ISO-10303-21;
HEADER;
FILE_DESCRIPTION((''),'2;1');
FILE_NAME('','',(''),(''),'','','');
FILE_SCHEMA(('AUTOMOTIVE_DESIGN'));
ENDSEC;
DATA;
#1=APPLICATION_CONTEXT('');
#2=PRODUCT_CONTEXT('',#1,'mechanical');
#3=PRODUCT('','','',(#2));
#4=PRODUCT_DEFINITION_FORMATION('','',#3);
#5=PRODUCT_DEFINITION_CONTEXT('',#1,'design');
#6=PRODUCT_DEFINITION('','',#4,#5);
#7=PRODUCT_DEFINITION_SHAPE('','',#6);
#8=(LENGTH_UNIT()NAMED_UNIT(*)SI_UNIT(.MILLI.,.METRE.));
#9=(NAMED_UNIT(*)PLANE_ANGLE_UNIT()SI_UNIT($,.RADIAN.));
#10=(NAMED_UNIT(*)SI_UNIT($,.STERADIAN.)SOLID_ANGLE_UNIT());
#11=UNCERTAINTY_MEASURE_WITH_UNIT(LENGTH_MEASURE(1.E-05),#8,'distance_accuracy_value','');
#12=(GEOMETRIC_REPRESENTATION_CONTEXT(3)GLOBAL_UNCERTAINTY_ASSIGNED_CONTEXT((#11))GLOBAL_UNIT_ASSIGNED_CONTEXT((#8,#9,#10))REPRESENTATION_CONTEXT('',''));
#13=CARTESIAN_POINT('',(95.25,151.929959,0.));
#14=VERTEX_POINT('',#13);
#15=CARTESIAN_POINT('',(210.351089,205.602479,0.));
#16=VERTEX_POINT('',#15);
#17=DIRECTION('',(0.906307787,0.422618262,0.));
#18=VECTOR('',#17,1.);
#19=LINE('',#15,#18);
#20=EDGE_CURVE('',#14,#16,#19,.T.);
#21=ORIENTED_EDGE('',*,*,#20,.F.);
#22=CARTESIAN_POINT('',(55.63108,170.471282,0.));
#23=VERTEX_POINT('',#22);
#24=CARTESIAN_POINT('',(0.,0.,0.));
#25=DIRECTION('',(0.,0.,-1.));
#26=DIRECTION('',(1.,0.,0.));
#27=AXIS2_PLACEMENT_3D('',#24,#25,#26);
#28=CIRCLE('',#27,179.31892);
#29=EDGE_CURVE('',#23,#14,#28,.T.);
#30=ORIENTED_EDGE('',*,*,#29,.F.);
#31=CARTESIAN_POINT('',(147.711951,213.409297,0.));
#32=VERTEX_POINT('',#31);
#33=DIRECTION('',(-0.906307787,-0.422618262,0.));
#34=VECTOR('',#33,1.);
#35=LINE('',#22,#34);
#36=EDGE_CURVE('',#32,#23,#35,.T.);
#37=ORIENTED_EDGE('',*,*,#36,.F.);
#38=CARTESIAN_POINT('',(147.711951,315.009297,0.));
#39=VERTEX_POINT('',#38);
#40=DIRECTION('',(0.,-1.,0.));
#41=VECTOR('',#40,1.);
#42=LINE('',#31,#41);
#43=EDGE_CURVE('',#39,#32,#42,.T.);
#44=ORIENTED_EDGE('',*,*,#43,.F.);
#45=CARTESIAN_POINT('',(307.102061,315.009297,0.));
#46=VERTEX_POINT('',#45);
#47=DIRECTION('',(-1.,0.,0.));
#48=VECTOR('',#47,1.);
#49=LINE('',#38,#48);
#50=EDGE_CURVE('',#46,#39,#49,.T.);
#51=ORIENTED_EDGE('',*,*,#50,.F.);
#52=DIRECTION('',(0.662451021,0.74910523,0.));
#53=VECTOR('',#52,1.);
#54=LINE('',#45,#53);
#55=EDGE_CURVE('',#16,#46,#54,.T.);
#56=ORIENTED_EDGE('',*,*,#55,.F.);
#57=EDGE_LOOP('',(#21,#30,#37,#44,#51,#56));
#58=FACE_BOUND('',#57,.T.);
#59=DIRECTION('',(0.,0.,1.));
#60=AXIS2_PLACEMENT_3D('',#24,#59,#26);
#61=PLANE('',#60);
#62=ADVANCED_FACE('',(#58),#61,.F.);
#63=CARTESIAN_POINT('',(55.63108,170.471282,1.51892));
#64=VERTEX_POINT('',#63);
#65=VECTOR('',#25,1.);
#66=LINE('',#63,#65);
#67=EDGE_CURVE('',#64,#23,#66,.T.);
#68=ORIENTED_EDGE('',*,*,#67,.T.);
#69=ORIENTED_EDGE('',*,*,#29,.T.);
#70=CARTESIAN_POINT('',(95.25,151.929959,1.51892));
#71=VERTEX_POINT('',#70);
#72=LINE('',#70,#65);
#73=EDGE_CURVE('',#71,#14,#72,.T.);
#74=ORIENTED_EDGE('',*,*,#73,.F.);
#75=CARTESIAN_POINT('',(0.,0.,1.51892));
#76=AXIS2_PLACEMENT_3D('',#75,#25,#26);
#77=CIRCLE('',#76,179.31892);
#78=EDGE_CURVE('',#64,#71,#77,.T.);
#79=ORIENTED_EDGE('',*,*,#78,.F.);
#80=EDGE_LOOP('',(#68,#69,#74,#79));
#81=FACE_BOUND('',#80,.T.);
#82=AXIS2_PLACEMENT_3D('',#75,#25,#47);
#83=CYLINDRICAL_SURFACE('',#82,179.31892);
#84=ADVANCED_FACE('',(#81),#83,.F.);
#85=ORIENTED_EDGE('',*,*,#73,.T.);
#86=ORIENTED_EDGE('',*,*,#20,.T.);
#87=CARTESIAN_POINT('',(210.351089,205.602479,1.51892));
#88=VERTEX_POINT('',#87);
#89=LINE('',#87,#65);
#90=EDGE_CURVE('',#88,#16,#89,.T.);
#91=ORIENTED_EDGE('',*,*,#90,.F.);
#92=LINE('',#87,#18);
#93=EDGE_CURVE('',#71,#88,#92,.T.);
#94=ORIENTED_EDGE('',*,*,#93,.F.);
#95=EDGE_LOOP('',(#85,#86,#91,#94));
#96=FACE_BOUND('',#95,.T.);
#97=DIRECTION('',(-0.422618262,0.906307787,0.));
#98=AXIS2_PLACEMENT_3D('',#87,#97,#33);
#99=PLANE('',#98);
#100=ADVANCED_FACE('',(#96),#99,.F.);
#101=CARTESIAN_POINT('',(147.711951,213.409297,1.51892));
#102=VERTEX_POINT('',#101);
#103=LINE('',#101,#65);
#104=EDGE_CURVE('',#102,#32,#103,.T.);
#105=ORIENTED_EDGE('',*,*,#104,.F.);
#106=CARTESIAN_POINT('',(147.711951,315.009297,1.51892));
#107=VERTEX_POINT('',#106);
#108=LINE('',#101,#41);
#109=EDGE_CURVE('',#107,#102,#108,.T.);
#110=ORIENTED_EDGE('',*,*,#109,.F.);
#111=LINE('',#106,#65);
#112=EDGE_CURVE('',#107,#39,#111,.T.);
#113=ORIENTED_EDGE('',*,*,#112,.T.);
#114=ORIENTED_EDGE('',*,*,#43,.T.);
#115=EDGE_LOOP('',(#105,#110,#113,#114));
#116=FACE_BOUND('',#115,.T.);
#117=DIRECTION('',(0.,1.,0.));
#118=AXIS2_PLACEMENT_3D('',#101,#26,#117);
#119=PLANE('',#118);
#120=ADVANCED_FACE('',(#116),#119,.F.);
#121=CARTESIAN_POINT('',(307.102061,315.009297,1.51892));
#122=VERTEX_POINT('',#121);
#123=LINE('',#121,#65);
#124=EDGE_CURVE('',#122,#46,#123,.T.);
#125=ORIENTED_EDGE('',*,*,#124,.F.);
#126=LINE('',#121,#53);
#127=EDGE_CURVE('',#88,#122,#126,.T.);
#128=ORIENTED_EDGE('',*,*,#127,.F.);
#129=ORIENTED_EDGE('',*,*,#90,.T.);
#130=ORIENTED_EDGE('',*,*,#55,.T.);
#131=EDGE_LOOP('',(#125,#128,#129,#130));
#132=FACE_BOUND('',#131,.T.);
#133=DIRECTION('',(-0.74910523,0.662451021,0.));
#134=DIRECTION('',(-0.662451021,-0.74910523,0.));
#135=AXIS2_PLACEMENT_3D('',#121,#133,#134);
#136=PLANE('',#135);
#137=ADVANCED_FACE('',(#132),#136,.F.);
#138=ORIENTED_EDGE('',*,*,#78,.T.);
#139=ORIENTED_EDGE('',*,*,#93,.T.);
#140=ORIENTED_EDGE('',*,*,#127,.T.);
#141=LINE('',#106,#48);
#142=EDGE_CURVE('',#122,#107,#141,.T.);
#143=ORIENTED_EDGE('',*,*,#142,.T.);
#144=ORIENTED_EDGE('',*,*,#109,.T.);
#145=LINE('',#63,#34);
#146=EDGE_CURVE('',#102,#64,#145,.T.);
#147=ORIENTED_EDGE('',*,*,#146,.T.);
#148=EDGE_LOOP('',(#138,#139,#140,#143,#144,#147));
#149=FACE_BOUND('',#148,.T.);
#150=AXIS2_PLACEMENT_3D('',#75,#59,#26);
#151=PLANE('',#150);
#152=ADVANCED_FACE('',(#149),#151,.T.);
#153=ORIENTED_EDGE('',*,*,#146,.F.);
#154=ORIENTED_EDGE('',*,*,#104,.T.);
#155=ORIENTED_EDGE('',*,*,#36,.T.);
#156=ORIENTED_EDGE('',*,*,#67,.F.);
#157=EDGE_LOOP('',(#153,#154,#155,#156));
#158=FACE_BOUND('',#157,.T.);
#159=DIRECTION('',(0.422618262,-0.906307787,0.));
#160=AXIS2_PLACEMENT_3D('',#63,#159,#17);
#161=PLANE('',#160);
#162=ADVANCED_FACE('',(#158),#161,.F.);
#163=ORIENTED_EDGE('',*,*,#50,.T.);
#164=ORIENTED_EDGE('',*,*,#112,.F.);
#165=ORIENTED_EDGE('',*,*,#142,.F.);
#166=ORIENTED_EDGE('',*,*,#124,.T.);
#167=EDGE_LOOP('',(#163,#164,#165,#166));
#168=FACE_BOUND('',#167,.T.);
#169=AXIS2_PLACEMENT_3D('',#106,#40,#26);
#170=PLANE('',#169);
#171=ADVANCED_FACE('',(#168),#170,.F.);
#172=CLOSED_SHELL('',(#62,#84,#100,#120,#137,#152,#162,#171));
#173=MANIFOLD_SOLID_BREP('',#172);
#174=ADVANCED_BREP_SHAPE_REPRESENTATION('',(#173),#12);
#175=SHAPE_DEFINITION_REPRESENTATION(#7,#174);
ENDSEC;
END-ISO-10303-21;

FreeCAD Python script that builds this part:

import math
import FreeCAD as App
import Part
import Sketcher
Q = App.Units.Quantity

doc = App.newDocument("Part")
params = doc.addObject("Spreadsheet::Sheet", "Params")
for row, (alias, value) in enumerate([
    ("sketch1_height", "4 in"),
    ("sketch1_length", "4 in"),
    ("sketch1_length2", "5 in"),
    ("sketch1_length3", "5.75 in"),
    ("pad1_length", "0.0598 in"),
], start=1):
    params.set(f"A{row}", alias)
    params.set(f"B{row}", "=" + value)
    params.setAlias(f"B{row}", alias)

body = doc.addObject("PartDesign::Body", "Body")

# Sketch on XY plane
sketch1 = body.newObject("Sketcher::SketchObject", "Sketch")
sketch1.AttachmentSupport = (doc.getObject("XY_Plane"), [""])
sketch1.MapMode = "FlatFace"
sketch1.addGeometry([
    Part.LineSegment(App.Vector(148, 213, 0), App.Vector(56, 170, 0)),  # 0
    Part.ArcOfCircle(Part.Circle(App.Vector(0, 0, 0), App.Vector(0, 0, 1), 179), math.radians(57.92), math.radians(71.93)),  # 1
    Part.LineSegment(App.Vector(95, 152, 0), App.Vector(210, 206, 0)),  # 2
    Part.LineSegment(App.Vector(210, 206, 0), App.Vector(307, 315, 0)),  # 3
    Part.LineSegment(App.Vector(307, 315, 0), App.Vector(148, 315, 0)),  # 4
    Part.LineSegment(App.Vector(148, 315, 0), App.Vector(148, 213, 0)),  # 5
], False)
sketch1.addConstraint([
    Sketcher.Constraint("Coincident", 0, 2, 1, 2),
    Sketcher.Constraint("Coincident", 1, 1, 2, 1),
    Sketcher.Constraint("Coincident", 2, 2, 3, 1),
    Sketcher.Constraint("Coincident", 3, 2, 4, 1),
    Sketcher.Constraint("Coincident", 4, 2, 5, 1),
    Sketcher.Constraint("Coincident", 5, 2, 0, 1),
    Sketcher.Constraint("Horizontal", 4),
    Sketcher.Constraint("Vertical", 5),
    Sketcher.Constraint("Coincident", 1, 3, -1, 1),
    Sketcher.Constraint("Parallel", 0, 2),
    Sketcher.Constraint("DistanceY", 5, 2, 5, 1, Q("4 in")),
    Sketcher.Constraint("Distance", 0, Q("4 in")),
    Sketcher.Constraint("Distance", 2, Q("5 in")),
    Sketcher.Constraint("Angle", 0, Q("-155 deg")),
    Sketcher.Constraint("Radius", 1, Q("7.0598 in")),
    Sketcher.Constraint("Distance", 3, Q("5.75 in")),
    Sketcher.Constraint("DistanceX", -1, 1, 1, 1, Q("3.75 in")),
    Sketcher.Constraint("DistanceX", -1, 1, 0, 2, Q("2.1902 in")),
])
sketch1.setExpression("Constraints[10]", "Params.sketch1_height")
sketch1.setExpression("Constraints[11]", "Params.sketch1_length")
sketch1.setExpression("Constraints[12]", "Params.sketch1_length2")
sketch1.setExpression("Constraints[15]", "Params.sketch1_length3")
pad1 = body.newObject("PartDesign::Pad", "Pad")
pad1.Profile = sketch1
pad1.setExpression("Length", "Params.pad1_length")

doc.recompute()
